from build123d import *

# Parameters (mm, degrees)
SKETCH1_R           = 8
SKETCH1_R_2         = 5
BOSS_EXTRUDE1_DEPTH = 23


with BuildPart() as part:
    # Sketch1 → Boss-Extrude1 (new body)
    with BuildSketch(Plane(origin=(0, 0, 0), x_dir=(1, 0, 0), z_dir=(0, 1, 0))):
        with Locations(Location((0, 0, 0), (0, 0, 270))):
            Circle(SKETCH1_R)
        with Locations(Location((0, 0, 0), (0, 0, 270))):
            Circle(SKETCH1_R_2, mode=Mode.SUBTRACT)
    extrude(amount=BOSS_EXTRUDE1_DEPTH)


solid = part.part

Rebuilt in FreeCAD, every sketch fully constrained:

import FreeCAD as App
import Part
import Sketcher

V = App.Vector
Q = App.Units.Quantity

doc = App.newDocument("Part")
params = doc.addObject("Spreadsheet::Sheet", "Params")
for row, (alias, value) in enumerate([
    ("sketch1_diameter", "16 mm"),
    ("sketch1_diameter2", "10 mm"),
    ("pad1_length", "23 mm"),
], start=1):
    params.set(f"A{row}", alias)
    params.set(f"B{row}", "=" + value)
    params.setAlias(f"B{row}", alias)

body = doc.addObject("PartDesign::Body", "Body")

# Sketch on XZ plane
sketch1 = body.newObject("Sketcher::SketchObject", "Sketch")
sketch1.AttachmentSupport = (doc.getObject("XZ_Plane"), [""])
sketch1.MapMode = "FlatFace"
sketch1.addGeometry([
    Part.Circle(V(0, 0, 0), V(0, 0, 1), 8),
    Part.Circle(V(0, 0, 0), V(0, 0, 1), 5),
], False)
sketch1.addConstraint([
    Sketcher.Constraint("Coincident", 0, 3, -1, 1),
    Sketcher.Constraint("Coincident", 1, 3, -1, 1),
    Sketcher.Constraint("Diameter", 0, Q("16 mm")),
    Sketcher.Constraint("Diameter", 1, Q("10 mm")),
])
sketch1.setExpression("Constraints[2]", "Params.sketch1_diameter")
sketch1.setExpression("Constraints[3]", "Params.sketch1_diameter2")
pad1 = body.newObject("PartDesign::Pad", "Pad")
pad1.Profile = sketch1
pad1.setExpression("Length", "Params.pad1_length")
pad1.Reversed = True

doc.recompute()
